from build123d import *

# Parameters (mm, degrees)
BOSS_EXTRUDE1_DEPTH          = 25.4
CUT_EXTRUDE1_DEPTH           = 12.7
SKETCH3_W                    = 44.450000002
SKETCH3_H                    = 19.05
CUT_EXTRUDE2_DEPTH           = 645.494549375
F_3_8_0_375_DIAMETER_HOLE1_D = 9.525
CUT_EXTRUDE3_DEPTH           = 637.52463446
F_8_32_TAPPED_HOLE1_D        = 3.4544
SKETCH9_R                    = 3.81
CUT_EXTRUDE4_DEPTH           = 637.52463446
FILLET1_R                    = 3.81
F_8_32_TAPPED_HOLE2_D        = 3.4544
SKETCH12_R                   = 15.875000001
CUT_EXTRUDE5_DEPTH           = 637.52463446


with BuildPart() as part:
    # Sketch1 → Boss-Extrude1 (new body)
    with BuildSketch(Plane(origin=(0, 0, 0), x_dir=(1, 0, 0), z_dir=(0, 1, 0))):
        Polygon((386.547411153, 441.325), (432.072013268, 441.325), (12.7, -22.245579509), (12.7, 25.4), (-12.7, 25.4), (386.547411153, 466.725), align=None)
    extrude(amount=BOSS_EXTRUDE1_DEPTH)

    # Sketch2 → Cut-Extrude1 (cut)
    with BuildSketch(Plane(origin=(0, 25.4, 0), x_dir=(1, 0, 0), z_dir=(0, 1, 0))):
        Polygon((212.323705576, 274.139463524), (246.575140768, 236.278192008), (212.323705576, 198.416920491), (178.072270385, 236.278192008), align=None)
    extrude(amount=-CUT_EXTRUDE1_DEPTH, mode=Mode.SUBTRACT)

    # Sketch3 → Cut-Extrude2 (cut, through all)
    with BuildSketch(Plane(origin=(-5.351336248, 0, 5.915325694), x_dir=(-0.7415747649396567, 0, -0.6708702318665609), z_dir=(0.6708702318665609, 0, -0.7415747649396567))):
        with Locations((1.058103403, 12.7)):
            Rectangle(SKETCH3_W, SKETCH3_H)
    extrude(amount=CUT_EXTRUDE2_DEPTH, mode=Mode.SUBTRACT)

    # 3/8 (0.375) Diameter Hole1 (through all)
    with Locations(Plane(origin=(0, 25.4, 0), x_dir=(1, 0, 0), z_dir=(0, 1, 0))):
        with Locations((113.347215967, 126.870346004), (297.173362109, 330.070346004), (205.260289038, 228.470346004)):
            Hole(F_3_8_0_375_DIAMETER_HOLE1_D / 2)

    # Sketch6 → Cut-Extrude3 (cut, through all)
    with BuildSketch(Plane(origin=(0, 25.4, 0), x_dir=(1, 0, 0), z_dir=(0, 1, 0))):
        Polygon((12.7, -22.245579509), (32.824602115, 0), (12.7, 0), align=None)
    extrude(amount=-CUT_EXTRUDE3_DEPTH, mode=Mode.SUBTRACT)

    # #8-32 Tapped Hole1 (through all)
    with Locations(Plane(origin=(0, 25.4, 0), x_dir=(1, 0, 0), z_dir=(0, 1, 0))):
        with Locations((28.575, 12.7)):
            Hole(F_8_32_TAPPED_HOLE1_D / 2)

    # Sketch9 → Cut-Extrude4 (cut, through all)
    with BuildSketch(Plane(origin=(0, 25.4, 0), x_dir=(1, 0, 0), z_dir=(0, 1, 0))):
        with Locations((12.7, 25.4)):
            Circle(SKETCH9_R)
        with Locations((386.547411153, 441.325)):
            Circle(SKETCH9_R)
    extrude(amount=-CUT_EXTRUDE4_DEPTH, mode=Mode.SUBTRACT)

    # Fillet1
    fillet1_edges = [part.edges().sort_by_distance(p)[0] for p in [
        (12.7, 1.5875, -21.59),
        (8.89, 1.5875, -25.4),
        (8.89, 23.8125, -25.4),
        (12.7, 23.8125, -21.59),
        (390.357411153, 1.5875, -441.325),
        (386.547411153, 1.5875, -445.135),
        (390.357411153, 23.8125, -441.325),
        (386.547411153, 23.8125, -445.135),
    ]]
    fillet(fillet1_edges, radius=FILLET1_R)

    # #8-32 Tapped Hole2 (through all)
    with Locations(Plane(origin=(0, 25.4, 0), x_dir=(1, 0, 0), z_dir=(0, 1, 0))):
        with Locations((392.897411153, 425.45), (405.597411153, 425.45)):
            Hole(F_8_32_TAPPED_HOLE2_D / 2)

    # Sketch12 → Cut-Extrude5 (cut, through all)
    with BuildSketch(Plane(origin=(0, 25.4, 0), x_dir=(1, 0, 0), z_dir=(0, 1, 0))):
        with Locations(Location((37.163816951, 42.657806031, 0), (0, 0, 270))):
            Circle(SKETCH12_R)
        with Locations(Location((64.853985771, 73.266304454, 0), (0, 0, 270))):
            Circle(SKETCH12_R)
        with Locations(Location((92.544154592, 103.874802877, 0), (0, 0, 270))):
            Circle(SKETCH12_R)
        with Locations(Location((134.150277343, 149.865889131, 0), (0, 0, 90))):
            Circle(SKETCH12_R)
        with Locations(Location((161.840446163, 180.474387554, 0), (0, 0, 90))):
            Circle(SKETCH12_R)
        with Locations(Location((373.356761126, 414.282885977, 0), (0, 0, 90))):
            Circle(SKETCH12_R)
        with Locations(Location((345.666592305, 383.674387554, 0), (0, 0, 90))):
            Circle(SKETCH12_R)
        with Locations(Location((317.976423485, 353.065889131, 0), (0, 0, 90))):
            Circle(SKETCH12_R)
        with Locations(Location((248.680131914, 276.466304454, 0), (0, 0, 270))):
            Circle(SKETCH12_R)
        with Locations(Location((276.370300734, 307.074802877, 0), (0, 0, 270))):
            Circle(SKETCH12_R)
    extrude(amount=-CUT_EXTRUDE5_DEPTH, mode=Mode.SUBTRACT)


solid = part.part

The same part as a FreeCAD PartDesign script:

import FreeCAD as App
import Part
import Sketcher
Q = App.Units.Quantity


def edges_at(feature, points):
    """Names of the edges that pass closest to the given points."""
    edges = feature.Shape.Edges
    near = lambda p: min(range(len(edges)), key=lambda i: edges[i].distToShape(Part.Vertex(*p))[0])
    return sorted({f"Edge{near(p) + 1}" for p in points})


def add_polygon(sketch, points):
    """Adds a closed chain of lines whose ends are joined by coincident constraints."""
    first, n = sketch.GeometryCount, len(points)
    for a, b in zip(points, points[1:] + points[:1]):
        sketch.addGeometry(Part.LineSegment(App.Vector(*a, 0), App.Vector(*b, 0)), False)
    for i in range(n):
        sketch.addConstraint(Sketcher.Constraint("Coincident", first + i, 2, first + (i + 1) % n, 1))

doc = App.newDocument("Part")
body = doc.addObject("PartDesign::Body", "Body")

# Sketch on XZ plane
sketch1 = doc.addObject("Sketcher::SketchObject", "Sketch")
body.addObject(sketch1)
sketch1.AttachmentSupport = (doc.XZ_Plane, [""])
sketch1.MapMode = "FlatFace"
add_polygon(sketch1, [(432, -441), (387, -441), (387, -467), (-13, -25), (13, -25), (13, 22)])  # lines 0-5
sketch1.addConstraint([
    Sketcher.Constraint("Horizontal", 0),
    Sketcher.Constraint("Vertical", 1),
    Sketcher.Constraint("Horizontal", 3),
    Sketcher.Constraint("Vertical", 4),
    Sketcher.Constraint("Parallel", 2, 5),
    Sketcher.Constraint("Equal", 3, 1),
    Sketcher.Constraint("DistanceX", 3, 1, 3, 2, Q("1 in")),
    Sketcher.Constraint("DistanceY", 2, 2, -1, 1, Q("1 in")),
    Sketcher.Constraint("DistanceX", 2, 2, -1, 1, Q("0.5 in")),
    Sketcher.Constraint("DistanceY", 0, 2, -1, 1, Q("17.375 in")),
    Sketcher.Constraint("DistanceY", 4, 1, 4, 2, Q("47.64558 mm")),
    Sketcher.Constraint("DistanceX", 0, 2, 0, 1, Q("45.524602 mm")),
])
pad1 = doc.addObject("PartDesign::Pad", "Pad")
body.addObject(pad1)
pad1.Profile = sketch1
pad1.Length = Q("1 in")
pad1.Reversed = True

# Sketch on XZ plane
sketch2 = doc.addObject("Sketcher::SketchObject", "Sketch001")
body.addObject(sketch2)
sketch2.AttachmentSupport = (doc.XZ_Plane, [""])
sketch2.MapMode = "FlatFace"
sketch2.AttachmentOffset = App.Placement(App.Vector(0, 0, -1 * 25.4), App.Rotation())
add_polygon(sketch2, [(247, -236), (212, -274), (178, -236), (212, -198)])  # lines 0-3
sketch2.addConstraint([
    Sketcher.Constraint("Parallel", 0, 2),
    Sketcher.Constraint("Parallel", 1, 3),
    Sketcher.Constraint("Horizontal", 1, 2, 3, 2),
    Sketcher.Constraint("Vertical", 0, 2, 2, 2),
    Sketcher.Constraint("Distance", 0, Q("51.055232 mm")),
    Sketcher.Constraint("DistanceX", -1, 1, 1, 2, Q("178.07227 mm")),
    Sketcher.Constraint("DistanceY", 2, 2, -1, 1, Q("198.41692 mm")),
    Sketcher.Constraint("DistanceX", -1, 1, 3, 2, Q("246.575141 mm")),
])
pocket1 = doc.addObject("PartDesign::Pocket", "Pocket")
body.addObject(pocket1)
pocket1.Profile = sketch2
pocket1.Length = Q("0.5 in")
pocket1.Reversed = True

# Sketch on an angled plane
sketch3 = doc.addObject("Sketcher::SketchObject", "Sketch002")
body.addObject(sketch3)
sketch3.Placement = App.Placement(App.Vector(-5.351336, 0, 5.915326), App.Rotation(App.Vector(-0.741574765, 0, -0.670870232), App.Vector(0, 1, 0), App.Vector(0.670870232, 0, -0.741574765), "ZXY"))
add_polygon(sketch3, [(-21, 22), (-21, 3), (23, 3), (23, 22)])  # lines 0-3
sketch3.addConstraint([
    Sketcher.Constraint("Vertical", 0),
    Sketcher.Constraint("Horizontal", 1),
    Sketcher.Constraint("Vertical", 2),
    Sketcher.Constraint("Horizontal", 3),
    Sketcher.Constraint("DistanceX", 1, 1, 1, 2, Q("1.75 in")),
    Sketcher.Constraint("DistanceY", 0, 2, 0, 1, Q("0.75 in")),
    Sketcher.Constraint("DistanceY", -1, 1, 0, 2, Q("0.125 in")),
    Sketcher.Constraint("DistanceX", 0, 2, -1, 1, Q("21.166897 mm")),
])
pocket2 = doc.addObject("PartDesign::Pocket", "Pocket001")
body.addObject(pocket2)
pocket2.Profile = sketch3
pocket2.Type = "ThroughAll"
pocket2.Reversed = True

# Sketch on XZ plane
sketch4 = doc.addObject("Sketcher::SketchObject", "Sketch003")
body.addObject(sketch4)
sketch4.AttachmentSupport = (doc.XZ_Plane, [""])
sketch4.MapMode = "FlatFace"
sketch4.AttachmentOffset = App.Placement(App.Vector(0, 0, -1 * 25.4), App.Rotation())
sketch4.addGeometry([
    Part.Circle(App.Vector(113.3, -126.9, 0), App.Vector(0, 0, 1), 4.8),
    Part.Circle(App.Vector(297.2, -330.1, 0), App.Vector(0, 0, 1), 4.8),
    Part.Circle(App.Vector(205.3, -228.5, 0), App.Vector(0, 0, 1), 4.8),
], False)
sketch4.addConstraint([
    Sketcher.Constraint("Equal", 0, 1),
    Sketcher.Constraint("Equal", 1, 2),
    Sketcher.Constraint("Diameter", 0, Q("0.375 in")),
    Sketcher.Constraint("DistanceY", 1, 3, 0, 3, Q("8 in")),
    Sketcher.Constraint("DistanceY", 2, 3, 0, 3, Q("4 in")),
    Sketcher.Constraint("DistanceX", -1, 1, 2, 3, Q("205.260289 mm")),
    Sketcher.Constraint("DistanceX", -1, 1, 0, 3, Q("113.347216 mm")),
    Sketcher.Constraint("DistanceY", 0, 3, -1, 1, Q("126.870346 mm")),
    Sketcher.Constraint("DistanceX", -1, 1, 1, 3, Q("297.173362 mm")),
])
doc.recompute()
hole = doc.addObject("PartDesign::Hole", "Hole")
body.addObject(hole)
hole.Profile = sketch4
hole.ThreadType = "None"
hole.Diameter = Q("0.375 in")
hole.DepthType = "ThroughAll"
hole.Reversed = True

# Sketch on XZ plane
sketch5 = doc.addObject("Sketcher::SketchObject", "Sketch004")
body.addObject(sketch5)
sketch5.AttachmentSupport = (doc.XZ_Plane, [""])
sketch5.MapMode = "FlatFace"
sketch5.AttachmentOffset = App.Placement(App.Vector(0, 0, -1 * 25.4), App.Rotation())
add_polygon(sketch5, [(13, 22), (33, 0), (13, 0)])  # lines 0-2
sketch5.addConstraint([
    Sketcher.Constraint("Horizontal", 1),
    Sketcher.Constraint("Vertical", 2),
    Sketcher.Constraint("PointOnObject", 0, 2, -1),
    Sketcher.Constraint("DistanceX", -1, 1, 1, 2, Q("0.5 in")),
    Sketcher.Constraint("DistanceY", 2, 1, 2, 2, Q("22.24558 mm")),
    Sketcher.Constraint("DistanceX", 1, 2, 1, 1, Q("20.124602 mm")),
])
pocket3 = doc.addObject("PartDesign::Pocket", "Pocket002")
body.addObject(pocket3)
pocket3.Profile = sketch5
pocket3.Type = "ThroughAll"
pocket3.Reversed = True

# Sketch on XZ plane
sketch6 = doc.addObject("Sketcher::SketchObject", "Sketch005")
body.addObject(sketch6)
sketch6.AttachmentSupport = (doc.XZ_Plane, [""])
sketch6.MapMode = "FlatFace"
sketch6.AttachmentOffset = App.Placement(App.Vector(0, 0, -1 * 25.4), App.Rotation())
sketch6.addGeometry(Part.Circle(App.Vector(28.6, -12.7, 0), App.Vector(0, 0, 1), 1.7), False)
sketch6.addConstraint([
    Sketcher.Constraint("Diameter", 0, Q("0.136 in")),
    Sketcher.Constraint("DistanceY", 0, 3, -1, 1, Q("0.5 in")),
    Sketcher.Constraint("DistanceX", -1, 1, 0, 3, Q("1.125 in")),
])
doc.recompute()
hole2 = doc.addObject("PartDesign::Hole", "Hole001")
body.addObject(hole2)
hole2.Profile = sketch6
hole2.ThreadType = "None"
hole2.Diameter = Q("0.136 in")
hole2.DepthType = "ThroughAll"
hole2.Reversed = True

# Sketch on XZ plane
sketch7 = doc.addObject("Sketcher::SketchObject", "Sketch006")
body.addObject(sketch7)
sketch7.AttachmentSupport = (doc.XZ_Plane, [""])
sketch7.MapMode = "FlatFace"
sketch7.AttachmentOffset = App.Placement(App.Vector(0, 0, -1 * 25.4), App.Rotation())
sketch7.addGeometry([
    Part.Circle(App.Vector(12.7, -25.4, 0), App.Vector(0, 0, 1), 3.8),
    Part.Circle(App.Vector(386.5, -441.3, 0), App.Vector(0, 0, 1), 3.8),
], False)
sketch7.addConstraint([
    Sketcher.Constraint("Equal", 0, 1),
    Sketcher.Constraint("Diameter", 0, Q("0.3 in")),
    Sketcher.Constraint("DistanceY", 0, 3, -1, 1, Q("1 in")),
    Sketcher.Constraint("DistanceX", -1, 1, 0, 3, Q("0.5 in")),
    Sketcher.Constraint("DistanceY", 1, 3, -1, 1, Q("17.375 in")),
    Sketcher.Constraint("DistanceX", -1, 1, 1, 3, Q("386.547411 mm")),
])
pocket4 = doc.addObject("PartDesign::Pocket", "Pocket003")
body.addObject(pocket4)
pocket4.Profile = sketch7
pocket4.Type = "ThroughAll"
pocket4.Reversed = True
doc.recompute()

fillet = doc.addObject("PartDesign::Fillet", "Fillet")
body.addObject(fillet)
fillet.Base = (pocket4, edges_at(pocket4, [
    (12.7, 1.587, -21.59),
    (8.89, 1.587, -25.4),
    (8.89, 23.812, -25.4),
    (12.7, 23.812, -21.59),
    (390.357, 1.587, -441.325),
    (386.547, 1.587, -445.135),
    (390.357, 23.812, -441.325),
    (386.547, 23.812, -445.135),
]))
fillet.Radius = Q("0.15 in")

# Sketch on XZ plane
sketch8 = doc.addObject("Sketcher::SketchObject", "Sketch007")
body.addObject(sketch8)
sketch8.AttachmentSupport = (doc.XZ_Plane, [""])
sketch8.MapMode = "FlatFace"
sketch8.AttachmentOffset = App.Placement(App.Vector(0, 0, -1 * 25.4), App.Rotation())
sketch8.addGeometry([
    Part.Circle(App.Vector(392.9, -425.4, 0), App.Vector(0, 0, 1), 1.7),
    Part.Circle(App.Vector(405.6, -425.4, 0), App.Vector(0, 0, 1), 1.7),
], False)
sketch8.addConstraint([
    Sketcher.Constraint("Equal", 0, 1),
    Sketcher.Constraint("Horizontal", 0, 3, 1, 3),
    Sketcher.Constraint("Diameter", 0, Q("0.136 in")),
    Sketcher.Constraint("DistanceX", 0, 3, 1, 3, Q("0.5 in")),
    Sketcher.Constraint("DistanceY", 0, 3, -1, 1, Q("16.75 in")),
    Sketcher.Constraint("DistanceX", -1, 1, 0, 3, Q("392.897411 mm")),
])
doc.recompute()
hole3 = doc.addObject("PartDesign::Hole", "Hole002")
body.addObject(hole3)
hole3.Profile = sketch8
hole3.ThreadType = "None"
hole3.Diameter = Q("0.136 in")
hole3.DepthType = "ThroughAll"
hole3.Reversed = True

# Sketch on XZ plane
sketch9 = doc.addObject("Sketcher::SketchObject", "Sketch008")
body.addObject(sketch9)
sketch9.AttachmentSupport = (doc.XZ_Plane, [""])
sketch9.MapMode = "FlatFace"
sketch9.AttachmentOffset = App.Placement(App.Vector(0, 0, -1 * 25.4), App.Rotation())
sketch9.addGeometry([
    Part.Circle(App.Vector(37, -43, 0), App.Vector(0, 0, 1), 16),  # 0
    Part.Circle(App.Vector(65, -73, 0), App.Vector(0, 0, 1), 16),  # 1
    Part.Circle(App.Vector(93, -104, 0), App.Vector(0, 0, 1), 16),  # 2
    Part.Circle(App.Vector(134, -150, 0), App.Vector(0, 0, 1), 16),  # 3
    Part.Circle(App.Vector(162, -180, 0), App.Vector(0, 0, 1), 16),  # 4
    Part.Circle(App.Vector(373, -414, 0), App.Vector(0, 0, 1), 16),  # 5
    Part.Circle(App.Vector(346, -384, 0), App.Vector(0, 0, 1), 16),  # 6
    Part.Circle(App.Vector(318, -353, 0), App.Vector(0, 0, 1), 16),  # 7
    Part.Circle(App.Vector(249, -276, 0), App.Vector(0, 0, 1), 16),  # 8
    Part.Circle(App.Vector(276, -307, 0), App.Vector(0, 0, 1), 16),  # 9
], False)
sketch9.addConstraint([
    Sketcher.Constraint("Equal", 0, 1),
    Sketcher.Constraint("Equal", 1, 2),
    Sketcher.Constraint("Equal", 2, 3),
    Sketcher.Constraint("Equal", 3, 4),
    Sketcher.Constraint("Equal", 4, 5),
    Sketcher.Constraint("Equal", 5, 6),
    Sketcher.Constraint("Equal", 6, 7),
    Sketcher.Constraint("Equal", 7, 8),
    Sketcher.Constraint("Equal", 8, 9),
    Sketcher.Constraint("Diameter", 0, Q("1.25 in")),
    Sketcher.Constraint("DistanceY", 6, 3, 4, 3, Q("8 in")),
    Sketcher.Constraint("DistanceY", 7, 3, 3, 3, Q("8 in")),
    Sketcher.Constraint("DistanceY", 1, 3, -1, 1, Q("2.8845002 in")),
    Sketcher.Constraint("DistanceY", 8, 3, -1, 1, Q("10.8845002 in")),
    Sketcher.Constraint("DistanceX", -1, 1, 9, 3, Q("276.370301 mm")),
    Sketcher.Constraint("DistanceY", 1, 3, 0, 3, Q("30.608498 mm")),
    Sketcher.Constraint("DistanceY", 2, 3, 1, 3, Q("30.608498 mm")),
    Sketcher.Constraint("DistanceY", 4, 3, 3, 3, Q("30.608498 mm")),
    Sketcher.Constraint("DistanceY", 5, 3, 4, 3, Q("233.808498 mm")),
    Sketcher.Constraint("DistanceY", 9, 3, 8, 3, Q("30.608498 mm")),
    Sketcher.Constraint("DistanceY", 3, 3, -1, 1, Q("149.865889 mm")),
    Sketcher.Constraint("DistanceX", -1, 1, 5, 3, Q("373.356761 mm")),
    Sketcher.Constraint("DistanceX", -1, 1, 8, 3, Q("248.680132 mm")),
    Sketcher.Constraint("DistanceX", 0, 3, 1, 3, Q("27.690169 mm")),
    Sketcher.Constraint("DistanceX", 1, 3, 2, 3, Q("27.690169 mm")),
    Sketcher.Constraint("DistanceX", 1, 3, 3, 3, Q("69.296292 mm")),
    Sketcher.Constraint("DistanceX", 3, 3, 4, 3, Q("27.690169 mm")),
    Sketcher.Constraint("DistanceX", 6, 3, 5, 3, Q("27.690169 mm")),
    Sketcher.Constraint("DistanceX", 7, 3, 6, 3, Q("27.690169 mm")),
    Sketcher.Constraint("DistanceX", 2, 3, 7, 3, Q("225.432269 mm")),
])
pocket5 = doc.addObject("PartDesign::Pocket", "Pocket004")
body.addObject(pocket5)
pocket5.Profile = sketch9
pocket5.Type = "ThroughAll"
pocket5.Reversed = True

doc.recompute()
